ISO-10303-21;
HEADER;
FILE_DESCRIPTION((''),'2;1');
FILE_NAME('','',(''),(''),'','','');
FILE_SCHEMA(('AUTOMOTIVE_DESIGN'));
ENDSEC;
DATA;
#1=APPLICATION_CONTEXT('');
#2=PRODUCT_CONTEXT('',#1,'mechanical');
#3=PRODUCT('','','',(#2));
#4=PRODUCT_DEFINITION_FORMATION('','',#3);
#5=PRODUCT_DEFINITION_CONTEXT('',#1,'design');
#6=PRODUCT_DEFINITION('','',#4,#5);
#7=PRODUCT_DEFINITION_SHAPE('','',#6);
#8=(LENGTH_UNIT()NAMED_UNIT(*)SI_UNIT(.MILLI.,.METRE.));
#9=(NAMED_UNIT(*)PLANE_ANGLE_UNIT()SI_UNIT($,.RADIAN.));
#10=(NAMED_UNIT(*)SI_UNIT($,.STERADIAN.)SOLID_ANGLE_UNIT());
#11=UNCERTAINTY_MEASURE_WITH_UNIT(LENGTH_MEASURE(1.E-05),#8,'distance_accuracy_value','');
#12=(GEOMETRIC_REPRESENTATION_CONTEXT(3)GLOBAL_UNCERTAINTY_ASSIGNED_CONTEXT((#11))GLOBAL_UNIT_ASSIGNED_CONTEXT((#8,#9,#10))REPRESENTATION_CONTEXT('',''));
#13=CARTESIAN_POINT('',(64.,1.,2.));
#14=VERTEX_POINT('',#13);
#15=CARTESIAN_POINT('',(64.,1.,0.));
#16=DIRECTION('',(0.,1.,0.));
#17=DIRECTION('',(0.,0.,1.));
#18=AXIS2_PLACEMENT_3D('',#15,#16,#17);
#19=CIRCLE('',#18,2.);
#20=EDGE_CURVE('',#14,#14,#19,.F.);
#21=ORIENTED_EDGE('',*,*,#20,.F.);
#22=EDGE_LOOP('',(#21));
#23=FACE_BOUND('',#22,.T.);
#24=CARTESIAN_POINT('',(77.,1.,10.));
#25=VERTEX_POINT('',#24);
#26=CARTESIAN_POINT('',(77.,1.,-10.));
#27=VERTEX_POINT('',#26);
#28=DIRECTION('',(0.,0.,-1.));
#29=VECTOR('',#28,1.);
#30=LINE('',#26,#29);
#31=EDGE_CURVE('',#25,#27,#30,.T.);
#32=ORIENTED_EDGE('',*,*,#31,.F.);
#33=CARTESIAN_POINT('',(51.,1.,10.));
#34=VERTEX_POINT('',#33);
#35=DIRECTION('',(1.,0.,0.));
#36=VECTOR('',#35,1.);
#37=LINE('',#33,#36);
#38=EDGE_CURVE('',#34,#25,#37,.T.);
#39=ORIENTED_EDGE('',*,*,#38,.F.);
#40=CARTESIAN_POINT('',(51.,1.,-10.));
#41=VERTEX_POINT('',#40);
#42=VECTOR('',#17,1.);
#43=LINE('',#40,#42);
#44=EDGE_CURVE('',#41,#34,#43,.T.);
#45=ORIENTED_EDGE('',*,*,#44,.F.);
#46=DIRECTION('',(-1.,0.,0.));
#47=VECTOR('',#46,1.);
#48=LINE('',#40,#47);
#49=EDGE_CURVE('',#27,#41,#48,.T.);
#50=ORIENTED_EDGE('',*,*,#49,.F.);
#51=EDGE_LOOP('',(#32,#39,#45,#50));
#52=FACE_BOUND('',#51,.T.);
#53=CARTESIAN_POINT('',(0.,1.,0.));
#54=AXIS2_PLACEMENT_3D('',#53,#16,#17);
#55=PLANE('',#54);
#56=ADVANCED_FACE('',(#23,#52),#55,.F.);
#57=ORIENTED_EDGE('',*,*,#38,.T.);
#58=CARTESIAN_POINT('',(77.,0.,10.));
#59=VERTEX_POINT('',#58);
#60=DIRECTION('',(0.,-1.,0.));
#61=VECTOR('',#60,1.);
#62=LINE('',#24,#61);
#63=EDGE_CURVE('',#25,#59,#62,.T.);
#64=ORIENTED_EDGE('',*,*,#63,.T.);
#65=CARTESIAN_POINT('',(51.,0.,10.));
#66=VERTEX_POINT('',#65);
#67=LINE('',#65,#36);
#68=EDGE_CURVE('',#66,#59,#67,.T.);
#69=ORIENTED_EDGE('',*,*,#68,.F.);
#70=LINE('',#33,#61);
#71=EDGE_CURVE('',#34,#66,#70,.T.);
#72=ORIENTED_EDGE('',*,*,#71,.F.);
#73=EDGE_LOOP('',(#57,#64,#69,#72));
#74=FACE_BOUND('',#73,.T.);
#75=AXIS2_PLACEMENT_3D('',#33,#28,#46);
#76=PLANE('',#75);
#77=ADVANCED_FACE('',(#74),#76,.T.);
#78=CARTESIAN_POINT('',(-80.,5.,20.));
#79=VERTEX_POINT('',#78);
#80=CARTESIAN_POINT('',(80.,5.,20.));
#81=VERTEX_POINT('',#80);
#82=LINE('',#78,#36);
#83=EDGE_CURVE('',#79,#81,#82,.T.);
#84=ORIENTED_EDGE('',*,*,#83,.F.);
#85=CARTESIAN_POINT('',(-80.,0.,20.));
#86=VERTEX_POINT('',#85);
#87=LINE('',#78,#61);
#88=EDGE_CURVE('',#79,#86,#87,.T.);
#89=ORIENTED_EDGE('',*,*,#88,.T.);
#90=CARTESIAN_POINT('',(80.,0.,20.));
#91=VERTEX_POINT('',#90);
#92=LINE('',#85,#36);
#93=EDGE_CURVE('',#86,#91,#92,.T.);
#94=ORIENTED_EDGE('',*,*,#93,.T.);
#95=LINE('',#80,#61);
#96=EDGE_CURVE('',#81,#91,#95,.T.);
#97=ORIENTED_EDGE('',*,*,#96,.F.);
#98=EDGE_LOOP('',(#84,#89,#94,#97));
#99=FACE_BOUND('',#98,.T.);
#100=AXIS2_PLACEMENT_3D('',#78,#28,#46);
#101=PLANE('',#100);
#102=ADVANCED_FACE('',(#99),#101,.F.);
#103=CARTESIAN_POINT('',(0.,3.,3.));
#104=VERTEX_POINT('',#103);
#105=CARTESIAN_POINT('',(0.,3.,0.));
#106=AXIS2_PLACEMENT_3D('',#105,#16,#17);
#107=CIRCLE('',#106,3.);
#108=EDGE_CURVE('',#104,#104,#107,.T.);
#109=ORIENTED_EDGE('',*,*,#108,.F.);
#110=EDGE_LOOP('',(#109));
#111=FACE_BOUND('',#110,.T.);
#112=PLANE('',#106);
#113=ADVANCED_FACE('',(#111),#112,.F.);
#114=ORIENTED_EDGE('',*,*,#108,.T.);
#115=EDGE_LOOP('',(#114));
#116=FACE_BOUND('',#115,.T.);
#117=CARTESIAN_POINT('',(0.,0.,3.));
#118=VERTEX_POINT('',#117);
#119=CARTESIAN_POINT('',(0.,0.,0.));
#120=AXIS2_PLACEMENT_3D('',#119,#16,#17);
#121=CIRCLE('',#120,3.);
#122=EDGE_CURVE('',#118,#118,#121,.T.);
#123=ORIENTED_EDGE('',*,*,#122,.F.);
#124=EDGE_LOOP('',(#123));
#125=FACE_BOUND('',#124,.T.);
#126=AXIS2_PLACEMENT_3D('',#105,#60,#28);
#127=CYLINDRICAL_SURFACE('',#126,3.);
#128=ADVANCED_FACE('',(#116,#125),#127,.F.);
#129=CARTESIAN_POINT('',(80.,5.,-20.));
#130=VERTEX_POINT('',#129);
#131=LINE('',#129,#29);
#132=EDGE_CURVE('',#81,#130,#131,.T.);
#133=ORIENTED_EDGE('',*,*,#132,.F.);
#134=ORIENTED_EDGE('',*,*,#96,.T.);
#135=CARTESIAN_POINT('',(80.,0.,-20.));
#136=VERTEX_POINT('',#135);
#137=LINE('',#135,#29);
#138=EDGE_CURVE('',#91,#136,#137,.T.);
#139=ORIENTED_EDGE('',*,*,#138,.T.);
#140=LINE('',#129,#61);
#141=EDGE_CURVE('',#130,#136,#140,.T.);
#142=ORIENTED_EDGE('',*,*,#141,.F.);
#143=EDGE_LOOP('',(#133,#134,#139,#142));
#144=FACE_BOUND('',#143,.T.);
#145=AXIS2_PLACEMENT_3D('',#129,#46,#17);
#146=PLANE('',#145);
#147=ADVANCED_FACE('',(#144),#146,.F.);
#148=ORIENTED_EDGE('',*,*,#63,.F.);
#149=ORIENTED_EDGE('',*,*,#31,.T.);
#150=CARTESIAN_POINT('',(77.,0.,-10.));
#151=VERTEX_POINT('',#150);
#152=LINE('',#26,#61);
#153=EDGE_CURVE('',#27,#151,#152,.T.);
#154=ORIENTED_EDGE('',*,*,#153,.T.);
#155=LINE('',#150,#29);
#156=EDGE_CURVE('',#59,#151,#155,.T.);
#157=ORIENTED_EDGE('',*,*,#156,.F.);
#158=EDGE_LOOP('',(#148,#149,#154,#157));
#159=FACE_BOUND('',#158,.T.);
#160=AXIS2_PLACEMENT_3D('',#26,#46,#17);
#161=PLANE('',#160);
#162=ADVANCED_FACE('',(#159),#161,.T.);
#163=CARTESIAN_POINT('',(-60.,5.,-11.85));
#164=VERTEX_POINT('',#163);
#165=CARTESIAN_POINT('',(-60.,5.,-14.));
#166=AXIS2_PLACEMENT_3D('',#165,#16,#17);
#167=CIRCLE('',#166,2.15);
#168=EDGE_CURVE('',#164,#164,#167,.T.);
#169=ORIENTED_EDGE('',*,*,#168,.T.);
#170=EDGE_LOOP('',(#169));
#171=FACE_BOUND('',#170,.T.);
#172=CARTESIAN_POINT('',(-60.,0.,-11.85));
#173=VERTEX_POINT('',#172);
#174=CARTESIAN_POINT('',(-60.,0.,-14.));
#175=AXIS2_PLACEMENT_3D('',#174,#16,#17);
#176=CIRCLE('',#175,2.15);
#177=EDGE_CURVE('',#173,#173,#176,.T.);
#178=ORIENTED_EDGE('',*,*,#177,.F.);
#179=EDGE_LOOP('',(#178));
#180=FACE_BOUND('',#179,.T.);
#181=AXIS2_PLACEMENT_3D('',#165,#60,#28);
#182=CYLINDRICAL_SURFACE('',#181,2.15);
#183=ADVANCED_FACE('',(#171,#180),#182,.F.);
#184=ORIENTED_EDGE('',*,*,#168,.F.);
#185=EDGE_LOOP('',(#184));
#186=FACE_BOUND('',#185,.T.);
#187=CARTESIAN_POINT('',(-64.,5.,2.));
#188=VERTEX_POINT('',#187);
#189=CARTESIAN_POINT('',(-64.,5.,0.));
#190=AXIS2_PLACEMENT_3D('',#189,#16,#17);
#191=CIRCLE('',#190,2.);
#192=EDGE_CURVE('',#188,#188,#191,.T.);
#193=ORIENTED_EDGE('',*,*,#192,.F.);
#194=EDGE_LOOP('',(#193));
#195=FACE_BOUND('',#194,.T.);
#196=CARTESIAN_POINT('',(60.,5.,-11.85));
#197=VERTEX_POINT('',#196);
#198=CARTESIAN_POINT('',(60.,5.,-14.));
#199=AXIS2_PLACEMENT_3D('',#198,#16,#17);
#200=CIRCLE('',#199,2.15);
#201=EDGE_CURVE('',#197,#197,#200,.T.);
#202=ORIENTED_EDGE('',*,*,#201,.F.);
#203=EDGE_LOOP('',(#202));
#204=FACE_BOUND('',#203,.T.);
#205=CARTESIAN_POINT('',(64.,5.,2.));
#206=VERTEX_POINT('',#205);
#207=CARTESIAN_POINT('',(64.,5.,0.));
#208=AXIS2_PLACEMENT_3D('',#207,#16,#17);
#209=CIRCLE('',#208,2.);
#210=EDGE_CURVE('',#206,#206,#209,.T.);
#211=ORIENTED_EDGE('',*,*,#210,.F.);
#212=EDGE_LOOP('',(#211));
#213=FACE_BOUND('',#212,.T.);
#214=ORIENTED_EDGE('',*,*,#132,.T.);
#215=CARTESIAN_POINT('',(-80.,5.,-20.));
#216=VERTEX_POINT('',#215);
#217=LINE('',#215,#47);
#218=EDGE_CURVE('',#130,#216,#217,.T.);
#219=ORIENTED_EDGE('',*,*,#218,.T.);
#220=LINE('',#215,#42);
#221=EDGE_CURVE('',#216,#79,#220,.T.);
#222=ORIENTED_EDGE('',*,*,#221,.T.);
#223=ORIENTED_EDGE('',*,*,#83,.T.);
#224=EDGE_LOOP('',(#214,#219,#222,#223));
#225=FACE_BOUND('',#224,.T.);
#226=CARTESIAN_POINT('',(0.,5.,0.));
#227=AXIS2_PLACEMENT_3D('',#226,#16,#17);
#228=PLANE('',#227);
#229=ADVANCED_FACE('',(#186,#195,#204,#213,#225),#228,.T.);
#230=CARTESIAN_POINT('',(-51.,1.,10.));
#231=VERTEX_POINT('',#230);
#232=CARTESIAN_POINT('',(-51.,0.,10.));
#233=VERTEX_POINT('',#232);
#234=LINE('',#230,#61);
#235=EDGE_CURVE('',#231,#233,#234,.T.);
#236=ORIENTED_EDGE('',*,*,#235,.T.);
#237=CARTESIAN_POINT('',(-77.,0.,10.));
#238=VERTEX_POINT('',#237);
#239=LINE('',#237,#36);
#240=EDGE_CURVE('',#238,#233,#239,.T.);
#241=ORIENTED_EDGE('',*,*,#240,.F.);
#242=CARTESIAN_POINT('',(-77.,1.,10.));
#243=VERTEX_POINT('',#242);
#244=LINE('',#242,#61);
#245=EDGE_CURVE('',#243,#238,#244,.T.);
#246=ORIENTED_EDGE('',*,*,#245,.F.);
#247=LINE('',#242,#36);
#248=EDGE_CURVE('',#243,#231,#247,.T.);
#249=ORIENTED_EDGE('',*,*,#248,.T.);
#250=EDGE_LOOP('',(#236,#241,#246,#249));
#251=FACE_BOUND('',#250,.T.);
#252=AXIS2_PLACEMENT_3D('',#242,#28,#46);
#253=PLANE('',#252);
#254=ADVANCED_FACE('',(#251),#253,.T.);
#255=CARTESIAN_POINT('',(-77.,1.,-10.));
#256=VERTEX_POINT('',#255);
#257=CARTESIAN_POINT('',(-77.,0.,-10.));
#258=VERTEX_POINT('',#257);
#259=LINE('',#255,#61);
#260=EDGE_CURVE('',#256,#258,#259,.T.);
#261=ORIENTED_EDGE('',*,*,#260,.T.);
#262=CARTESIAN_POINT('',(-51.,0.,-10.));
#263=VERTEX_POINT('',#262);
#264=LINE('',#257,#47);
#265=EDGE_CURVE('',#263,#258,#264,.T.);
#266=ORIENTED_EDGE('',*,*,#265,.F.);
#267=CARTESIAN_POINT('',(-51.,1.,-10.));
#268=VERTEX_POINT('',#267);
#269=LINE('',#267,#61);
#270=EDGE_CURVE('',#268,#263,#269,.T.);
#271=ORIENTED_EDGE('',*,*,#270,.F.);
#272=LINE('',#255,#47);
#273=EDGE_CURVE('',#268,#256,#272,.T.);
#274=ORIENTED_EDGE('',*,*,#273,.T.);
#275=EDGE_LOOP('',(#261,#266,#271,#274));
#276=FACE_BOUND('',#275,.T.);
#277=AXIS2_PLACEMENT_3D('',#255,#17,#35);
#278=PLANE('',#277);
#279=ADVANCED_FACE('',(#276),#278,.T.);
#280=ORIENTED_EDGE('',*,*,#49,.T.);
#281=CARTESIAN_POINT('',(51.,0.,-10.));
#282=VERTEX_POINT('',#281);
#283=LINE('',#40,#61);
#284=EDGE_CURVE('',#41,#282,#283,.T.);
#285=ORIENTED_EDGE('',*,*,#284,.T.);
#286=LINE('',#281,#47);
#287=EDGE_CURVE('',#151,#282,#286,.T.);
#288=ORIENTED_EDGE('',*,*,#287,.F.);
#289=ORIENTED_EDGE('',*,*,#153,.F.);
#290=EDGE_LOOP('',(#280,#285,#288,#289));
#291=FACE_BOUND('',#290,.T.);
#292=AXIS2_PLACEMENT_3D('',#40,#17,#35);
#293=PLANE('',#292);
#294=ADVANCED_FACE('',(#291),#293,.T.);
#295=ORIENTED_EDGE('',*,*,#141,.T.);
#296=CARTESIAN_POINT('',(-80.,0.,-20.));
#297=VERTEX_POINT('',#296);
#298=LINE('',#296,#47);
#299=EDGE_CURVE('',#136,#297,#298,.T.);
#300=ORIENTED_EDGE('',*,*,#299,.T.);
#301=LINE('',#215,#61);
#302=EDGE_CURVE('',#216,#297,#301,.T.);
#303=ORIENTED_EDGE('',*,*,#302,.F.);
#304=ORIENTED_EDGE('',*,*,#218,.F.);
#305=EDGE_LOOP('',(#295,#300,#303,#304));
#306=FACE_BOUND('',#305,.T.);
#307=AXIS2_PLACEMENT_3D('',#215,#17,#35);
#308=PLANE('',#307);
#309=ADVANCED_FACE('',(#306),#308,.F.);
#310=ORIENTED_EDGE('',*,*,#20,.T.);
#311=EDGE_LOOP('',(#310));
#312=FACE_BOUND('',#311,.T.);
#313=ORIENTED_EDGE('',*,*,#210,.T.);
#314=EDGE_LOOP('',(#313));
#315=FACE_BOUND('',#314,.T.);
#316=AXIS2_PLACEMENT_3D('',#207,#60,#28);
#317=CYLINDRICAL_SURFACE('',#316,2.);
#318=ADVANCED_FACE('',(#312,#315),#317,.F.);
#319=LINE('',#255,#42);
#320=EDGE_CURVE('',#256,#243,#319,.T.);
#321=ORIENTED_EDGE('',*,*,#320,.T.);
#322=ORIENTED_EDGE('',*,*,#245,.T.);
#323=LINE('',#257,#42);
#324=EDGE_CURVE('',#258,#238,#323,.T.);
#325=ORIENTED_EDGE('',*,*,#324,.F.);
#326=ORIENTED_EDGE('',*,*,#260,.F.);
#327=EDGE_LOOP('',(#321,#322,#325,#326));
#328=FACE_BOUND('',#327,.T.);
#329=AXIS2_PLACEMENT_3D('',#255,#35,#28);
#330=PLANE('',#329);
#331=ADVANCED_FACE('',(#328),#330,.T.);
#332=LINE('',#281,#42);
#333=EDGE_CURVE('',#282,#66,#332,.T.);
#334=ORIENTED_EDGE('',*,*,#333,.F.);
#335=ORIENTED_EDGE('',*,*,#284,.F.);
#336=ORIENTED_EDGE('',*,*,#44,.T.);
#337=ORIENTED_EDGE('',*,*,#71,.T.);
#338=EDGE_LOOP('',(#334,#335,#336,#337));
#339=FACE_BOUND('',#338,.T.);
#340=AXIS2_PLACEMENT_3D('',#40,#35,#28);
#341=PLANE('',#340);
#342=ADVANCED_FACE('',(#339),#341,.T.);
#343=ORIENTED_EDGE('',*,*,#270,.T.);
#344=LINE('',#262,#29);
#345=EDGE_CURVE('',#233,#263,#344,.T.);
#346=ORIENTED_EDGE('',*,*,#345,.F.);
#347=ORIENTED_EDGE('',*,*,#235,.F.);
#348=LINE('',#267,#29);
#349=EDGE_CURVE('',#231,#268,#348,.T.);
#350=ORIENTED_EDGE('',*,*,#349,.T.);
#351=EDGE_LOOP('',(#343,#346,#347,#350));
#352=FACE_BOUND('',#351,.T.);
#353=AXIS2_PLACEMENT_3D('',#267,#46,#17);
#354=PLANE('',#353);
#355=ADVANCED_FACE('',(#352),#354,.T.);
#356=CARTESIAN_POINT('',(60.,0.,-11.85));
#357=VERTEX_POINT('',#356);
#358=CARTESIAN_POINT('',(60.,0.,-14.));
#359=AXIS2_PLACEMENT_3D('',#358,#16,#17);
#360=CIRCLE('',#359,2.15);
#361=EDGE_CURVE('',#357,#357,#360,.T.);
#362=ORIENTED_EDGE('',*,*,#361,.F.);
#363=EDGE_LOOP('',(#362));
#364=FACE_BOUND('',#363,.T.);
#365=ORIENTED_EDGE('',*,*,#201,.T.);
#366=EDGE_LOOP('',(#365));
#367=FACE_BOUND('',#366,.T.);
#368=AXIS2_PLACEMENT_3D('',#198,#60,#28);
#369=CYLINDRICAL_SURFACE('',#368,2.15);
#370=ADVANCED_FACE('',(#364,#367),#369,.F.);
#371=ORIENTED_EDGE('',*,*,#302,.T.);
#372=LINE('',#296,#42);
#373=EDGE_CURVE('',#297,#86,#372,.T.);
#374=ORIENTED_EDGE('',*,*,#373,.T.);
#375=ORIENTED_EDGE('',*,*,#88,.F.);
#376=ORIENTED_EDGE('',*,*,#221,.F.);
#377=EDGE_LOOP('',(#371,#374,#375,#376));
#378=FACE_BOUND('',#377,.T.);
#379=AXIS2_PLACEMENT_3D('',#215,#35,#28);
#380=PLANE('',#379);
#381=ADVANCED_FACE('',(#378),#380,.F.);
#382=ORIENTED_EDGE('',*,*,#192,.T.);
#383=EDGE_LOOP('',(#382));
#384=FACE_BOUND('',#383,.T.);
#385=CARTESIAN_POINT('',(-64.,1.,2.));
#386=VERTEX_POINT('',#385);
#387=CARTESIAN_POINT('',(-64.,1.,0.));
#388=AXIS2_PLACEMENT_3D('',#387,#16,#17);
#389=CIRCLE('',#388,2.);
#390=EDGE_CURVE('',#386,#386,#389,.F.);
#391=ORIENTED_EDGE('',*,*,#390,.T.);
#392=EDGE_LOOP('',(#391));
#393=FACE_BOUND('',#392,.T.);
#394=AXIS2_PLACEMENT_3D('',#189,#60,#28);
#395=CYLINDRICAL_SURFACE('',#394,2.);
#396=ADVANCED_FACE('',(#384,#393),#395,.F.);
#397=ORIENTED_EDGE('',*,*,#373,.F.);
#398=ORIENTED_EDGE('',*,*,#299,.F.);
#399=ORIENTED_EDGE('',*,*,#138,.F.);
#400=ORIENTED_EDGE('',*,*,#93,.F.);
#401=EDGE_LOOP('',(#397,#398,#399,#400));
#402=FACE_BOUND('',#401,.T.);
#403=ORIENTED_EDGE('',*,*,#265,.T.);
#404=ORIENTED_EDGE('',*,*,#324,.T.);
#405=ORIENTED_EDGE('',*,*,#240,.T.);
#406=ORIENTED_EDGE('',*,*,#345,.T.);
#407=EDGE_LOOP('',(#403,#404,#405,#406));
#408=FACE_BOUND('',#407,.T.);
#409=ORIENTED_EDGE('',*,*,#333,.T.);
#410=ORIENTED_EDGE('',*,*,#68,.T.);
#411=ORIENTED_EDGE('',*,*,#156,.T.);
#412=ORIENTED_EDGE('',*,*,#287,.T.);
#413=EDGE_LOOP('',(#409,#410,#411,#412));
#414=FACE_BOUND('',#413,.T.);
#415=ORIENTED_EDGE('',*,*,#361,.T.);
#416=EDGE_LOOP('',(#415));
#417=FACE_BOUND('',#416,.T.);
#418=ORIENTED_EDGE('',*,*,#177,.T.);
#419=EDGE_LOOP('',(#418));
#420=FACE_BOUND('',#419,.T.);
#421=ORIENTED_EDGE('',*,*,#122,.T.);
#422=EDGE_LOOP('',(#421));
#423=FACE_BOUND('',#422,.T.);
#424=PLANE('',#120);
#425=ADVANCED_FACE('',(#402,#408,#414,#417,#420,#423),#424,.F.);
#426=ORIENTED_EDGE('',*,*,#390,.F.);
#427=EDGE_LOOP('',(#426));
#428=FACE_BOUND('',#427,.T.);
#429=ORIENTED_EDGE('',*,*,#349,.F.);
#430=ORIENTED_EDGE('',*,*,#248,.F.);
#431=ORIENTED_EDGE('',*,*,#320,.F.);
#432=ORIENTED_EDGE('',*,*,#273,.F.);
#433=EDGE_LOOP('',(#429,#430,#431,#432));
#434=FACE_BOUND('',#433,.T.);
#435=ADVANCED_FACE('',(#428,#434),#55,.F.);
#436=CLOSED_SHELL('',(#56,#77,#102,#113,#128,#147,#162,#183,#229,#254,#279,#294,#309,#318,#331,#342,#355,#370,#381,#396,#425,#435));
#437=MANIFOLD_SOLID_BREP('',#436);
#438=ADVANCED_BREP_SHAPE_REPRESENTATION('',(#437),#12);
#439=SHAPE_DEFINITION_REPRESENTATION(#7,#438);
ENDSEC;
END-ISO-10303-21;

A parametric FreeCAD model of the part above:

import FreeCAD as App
import Part
import Sketcher
Q = App.Units.Quantity


def add_polygon(sketch, points):
    """Adds a closed chain of lines whose ends are joined by coincident constraints."""
    first, n = sketch.GeometryCount, len(points)
    for a, b in zip(points, points[1:] + points[:1]):
        sketch.addGeometry(Part.LineSegment(App.Vector(*a, 0), App.Vector(*b, 0)), False)
    for i in range(n):
        sketch.addConstraint(Sketcher.Constraint("Coincident", first + i, 2, first + (i + 1) % n, 1))

doc = App.newDocument("Part")
params = doc.addObject("Spreadsheet::Sheet", "Params")
for row, (alias, value) in enumerate([
    ("sketch1_width", "160 mm"),
    ("sketch1_height", "40 mm"),
    ("pad1_length", "5 mm"),
    ("sketch2_width", "26 mm"),
    ("sketch2_height", "20 mm"),
    ("pocket1_length", "1 mm"),
    ("sketch3_diameter", "4 mm"),
    ("pocket2_length", "5 mm"),
    ("sketch4_diameter", "6 mm"),
    ("pocket3_length", "3 mm"),
    ("sketch5_diameter", "4.3 mm"),
    ("pocket4_length", "5 mm"),
], start=1):
    params.set(f"A{row}", alias)
    params.set(f"B{row}", "=" + value)
    params.setAlias(f"B{row}", alias)

body = doc.addObject("PartDesign::Body", "Body")

# Sketch on XZ plane
sketch1 = body.newObject("Sketcher::SketchObject", "Sketch")
sketch1.AttachmentSupport = (doc.getObject("XZ_Plane"), [""])
sketch1.MapMode = "FlatFace"
add_polygon(sketch1, [(-80, -20), (-80, 20), (80, 20), (80, -20)])  # lines 0-3
sketch1.addConstraint([
    Sketcher.Constraint("Vertical", 0),
    Sketcher.Constraint("Horizontal", 1),
    Sketcher.Constraint("Vertical", 2),
    Sketcher.Constraint("Horizontal", 3),
    Sketcher.Constraint("Symmetric", 0, 2, 2, 2, -1, 1),
    Sketcher.Constraint("DistanceX", 1, 1, 1, 2, Q("160 mm")),
    Sketcher.Constraint("DistanceY", 0, 1, 0, 2, Q("40 mm")),
])
sketch1.setExpression("Constraints[9]", "Params.sketch1_width")
sketch1.setExpression("Constraints[10]", "Params.sketch1_height")
pad1 = body.newObject("PartDesign::Pad", "Pad")
pad1.Profile = sketch1
pad1.setExpression("Length", "Params.pad1_length")
pad1.Reversed = True

# Sketch on XZ plane
sketch2 = body.newObject("Sketcher::SketchObject", "Sketch001")
sketch2.AttachmentSupport = (doc.getObject("XZ_Plane"), [""])
sketch2.MapMode = "FlatFace"
add_polygon(sketch2, [(51, -10), (51, 10), (77, 10), (77, -10)])  # lines 0-3
add_polygon(sketch2, [(-77, -10), (-77, 10), (-51, 10), (-51, -10)])  # lines 4-7
sketch2.addConstraint([
    Sketcher.Constraint("Vertical", 0),
    Sketcher.Constraint("Horizontal", 1),
    Sketcher.Constraint("Vertical", 2),
    Sketcher.Constraint("Horizontal", 3),
    Sketcher.Constraint("Vertical", 4),
    Sketcher.Constraint("Horizontal", 5),
    Sketcher.Constraint("Vertical", 6),
    Sketcher.Constraint("Horizontal", 7),
    Sketcher.Constraint("Symmetric", 2, 2, 4, 2, -1, 1),
    Sketcher.Constraint("Symmetric", 0, 2, 6, 2, -1, 1),
    Sketcher.Constraint("Horizontal", 1, 2, 4, 2),
    Sketcher.Constraint("DistanceX", 1, 1, 1, 2, Q("26 mm")),
    Sketcher.Constraint("DistanceY", 0, 1, 0, 2, Q("20 mm")),
    Sketcher.Constraint("DistanceX", -1, 1, 0, 2, Q("51 mm")),
])
sketch2.setExpression("Constraints[19]", "Params.sketch2_width")
sketch2.setExpression("Constraints[20]", "Params.sketch2_height")
pocket1 = body.newObject("PartDesign::Pocket", "Pocket")
pocket1.Profile = sketch2
pocket1.setExpression("Length", "Params.pocket1_length")

# Sketch on XZ plane
sketch3 = body.newObject("Sketcher::SketchObject", "Sketch002")
sketch3.AttachmentSupport = (doc.getObject("XZ_Plane"), [""])
sketch3.MapMode = "FlatFace"
sketch3.addGeometry([
    Part.Circle(App.Vector(64, 0, 0), App.Vector(0, 0, 1), 2),
    Part.Circle(App.Vector(-64, 0, 0), App.Vector(0, 0, 1), 2),
], False)
sketch3.addConstraint([
    Sketcher.Constraint("Equal", 0, 1),
    Sketcher.Constraint("Symmetric", 0, 3, 1, 3, -1, 1),
    Sketcher.Constraint("PointOnObject", 0, 3, -1),
    Sketcher.Constraint("Diameter", 0, Q("4 mm")),
    Sketcher.Constraint("DistanceX", -1, 1, 0, 3, Q("64 mm")),
])
sketch3.setExpression("Constraints[3]", "Params.sketch3_diameter")
pocket2 = body.newObject("PartDesign::Pocket", "Pocket001")
pocket2.Profile = sketch3
pocket2.setExpression("Length", "Params.pocket2_length")

# Sketch on XZ plane
sketch4 = body.newObject("Sketcher::SketchObject", "Sketch003")
sketch4.AttachmentSupport = (doc.getObject("XZ_Plane"), [""])
sketch4.MapMode = "FlatFace"
sketch4.addGeometry(Part.Circle(App.Vector(0, 0, 0), App.Vector(0, 0, 1), 3), False)
sketch4.addConstraint([
    Sketcher.Constraint("Coincident", 0, 3, -1, 1),
    Sketcher.Constraint("Diameter", 0, Q("6 mm")),
])
sketch4.setExpression("Constraints[1]", "Params.sketch4_diameter")
pocket3 = body.newObject("PartDesign::Pocket", "Pocket002")
pocket3.Profile = sketch4
pocket3.setExpression("Length", "Params.pocket3_length")

# Sketch on XZ plane
sketch5 = body.newObject("Sketcher::SketchObject", "Sketch004")
sketch5.AttachmentSupport = (doc.getObject("XZ_Plane"), [""])
sketch5.MapMode = "FlatFace"
sketch5.addGeometry([
    Part.Circle(App.Vector(60, -14, 0), App.Vector(0, 0, 1), 2.1),
    Part.Circle(App.Vector(-60, -14, 0), App.Vector(0, 0, 1), 2.1),
], False)
sketch5.addConstraint([
    Sketcher.Constraint("Equal", 0, 1),
    Sketcher.Constraint("Symmetric", 0, 3, 1, 3, -2),
    Sketcher.Constraint("Diameter", 0, Q("4.3 mm")),
    Sketcher.Constraint("DistanceX", -1, 1, 0, 3, Q("60 mm")),
    Sketcher.Constraint("DistanceY", 0, 3, -1, 1, Q("14 mm")),
])
sketch5.setExpression("Constraints[2]", "Params.sketch5_diameter")
pocket4 = body.newObject("PartDesign::Pocket", "Pocket003")
pocket4.Profile = sketch5
pocket4.setExpression("Length", "Params.pocket4_length")

doc.recompute()
